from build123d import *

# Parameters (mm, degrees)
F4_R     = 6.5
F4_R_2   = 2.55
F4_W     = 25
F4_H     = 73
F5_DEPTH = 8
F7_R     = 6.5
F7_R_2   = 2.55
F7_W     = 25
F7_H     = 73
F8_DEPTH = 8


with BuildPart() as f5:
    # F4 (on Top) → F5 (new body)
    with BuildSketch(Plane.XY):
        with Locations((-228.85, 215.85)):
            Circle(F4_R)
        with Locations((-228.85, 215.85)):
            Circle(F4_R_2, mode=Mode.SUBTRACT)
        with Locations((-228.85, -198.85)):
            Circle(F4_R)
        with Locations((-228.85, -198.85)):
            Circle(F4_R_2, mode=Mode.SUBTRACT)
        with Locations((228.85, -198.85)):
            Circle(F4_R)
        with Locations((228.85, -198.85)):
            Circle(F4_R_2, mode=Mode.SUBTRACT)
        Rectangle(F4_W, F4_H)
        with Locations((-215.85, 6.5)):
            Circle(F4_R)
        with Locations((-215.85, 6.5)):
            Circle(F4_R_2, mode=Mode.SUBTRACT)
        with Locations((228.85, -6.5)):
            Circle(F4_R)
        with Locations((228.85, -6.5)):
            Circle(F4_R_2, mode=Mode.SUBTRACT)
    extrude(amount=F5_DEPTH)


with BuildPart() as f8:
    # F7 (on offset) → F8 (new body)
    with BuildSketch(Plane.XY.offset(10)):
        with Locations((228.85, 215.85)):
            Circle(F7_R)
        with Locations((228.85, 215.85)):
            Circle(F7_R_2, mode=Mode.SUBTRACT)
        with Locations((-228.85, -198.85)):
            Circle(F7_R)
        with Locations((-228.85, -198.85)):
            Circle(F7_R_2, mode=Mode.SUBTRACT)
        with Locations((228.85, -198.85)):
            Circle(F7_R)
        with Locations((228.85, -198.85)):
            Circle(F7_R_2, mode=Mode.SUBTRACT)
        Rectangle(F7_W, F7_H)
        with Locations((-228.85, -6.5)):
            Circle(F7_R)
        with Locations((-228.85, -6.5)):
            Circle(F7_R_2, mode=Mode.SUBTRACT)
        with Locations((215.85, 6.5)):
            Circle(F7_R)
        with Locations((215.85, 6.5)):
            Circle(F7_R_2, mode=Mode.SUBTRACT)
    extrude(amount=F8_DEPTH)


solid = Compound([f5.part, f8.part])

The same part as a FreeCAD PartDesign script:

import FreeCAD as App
import Part
import Sketcher
from FreeCAD import Vector


def add_polygon(sketch, points):
    """Adds a closed chain of lines whose ends are joined by coincident constraints."""
    first, n = sketch.GeometryCount, len(points)
    for a, b in zip(points, points[1:] + points[:1]):
        sketch.addGeometry(Part.LineSegment(App.Vector(*a, 0), App.Vector(*b, 0)), False)
    for i in range(n):
        sketch.addConstraint(Sketcher.Constraint("Coincident", first + i, 2, first + (i + 1) % n, 1))

doc = App.newDocument("Part")
params = doc.addObject("Spreadsheet::Sheet", "Params")
for row, (alias, value) in enumerate([
    ("sketch1_diameter", "13 mm"),
    ("sketch1_diameter2", "5.1 mm"),
    ("sketch1_width", "25 mm"),
    ("sketch1_height", "73 mm"),
    ("pad1_length", "8 mm"),
    ("sketch2_diameter", "13 mm"),
    ("sketch2_diameter2", "5.1 mm"),
    ("sketch2_width", "25 mm"),
    ("sketch2_height", "73 mm"),
    ("pad2_length", "8 mm"),
], start=1):
    params.set(f"A{row}", alias)
    params.set(f"B{row}", "=" + value)
    params.setAlias(f"B{row}", alias)

body = doc.addObject("PartDesign::Body", "Body")
body.AllowCompound = True

# Sketch on XY plane
sketch1 = body.newObject("Sketcher::SketchObject", "Sketch")
sketch1.AttachmentSupport = (doc.getObject("XY_Plane"), [""])
sketch1.MapMode = "FlatFace"
sketch1.addGeometry(Part.Circle(Vector(-228.85, 215.85, 0), Vector(0, 0, 1), 6.5), False)  # 0
sketch1.addGeometry(Part.Circle(Vector(-228.85, 215.85, 0), Vector(0, 0, 1), 2.55), False)  # 1
sketch1.addGeometry(Part.Circle(Vector(-228.85, -198.85, 0), Vector(0, 0, 1), 6.5), False)  # 2
sketch1.addGeometry(Part.Circle(Vector(-228.85, -198.85, 0), Vector(0, 0, 1), 2.55), False)  # 3
sketch1.addGeometry(Part.Circle(Vector(228.85, -198.85, 0), Vector(0, 0, 1), 6.5), False)  # 4
sketch1.addGeometry(Part.Circle(Vector(228.85, -198.85, 0), Vector(0, 0, 1), 2.55), False)  # 5
add_polygon(sketch1, [(-12.5, 36.5), (-12.5, -36.5), (12.5, -36.5), (12.5, 36.5)])  # lines 6-9
sketch1.addGeometry(Part.Circle(Vector(-215.85, 6.5, 0), Vector(0, 0, 1), 6.5), False)  # 10
sketch1.addGeometry(Part.Circle(Vector(-215.85, 6.5, 0), Vector(0, 0, 1), 2.55), False)  # 11
sketch1.addGeometry(Part.Circle(Vector(228.85, -6.5, 0), Vector(0, 0, 1), 6.5), False)  # 12
sketch1.addGeometry(Part.Circle(Vector(228.85, -6.5, 0), Vector(0, 0, 1), 2.55), False)  # 13
sketch1.addConstraint([
    Sketcher.Constraint("Vertical", 6),
    Sketcher.Constraint("Horizontal", 7),
    Sketcher.Constraint("Vertical", 8),
    Sketcher.Constraint("Horizontal", 9),
    Sketcher.Constraint("Coincident", 1, 3, 0, 3),
    Sketcher.Constraint("Coincident", 3, 3, 2, 3),
    Sketcher.Constraint("Coincident", 5, 3, 4, 3),
    Sketcher.Constraint("Coincident", 11, 3, 10, 3),
    Sketcher.Constraint("Coincident", 13, 3, 12, 3),
    Sketcher.Constraint("Equal", 0, 2),
    Sketcher.Constraint("Equal", 1, 3),
    Sketcher.Constraint("Equal", 2, 4),
    Sketcher.Constraint("Equal", 3, 5),
    Sketcher.Constraint("Equal", 4, 10),
    Sketcher.Constraint("Equal", 5, 11),
    Sketcher.Constraint("Equal", 10, 12),
    Sketcher.Constraint("Equal", 11, 13),
    Sketcher.Constraint("Symmetric", 6, 2, 8, 2, -1, 1),
    Sketcher.Constraint("Symmetric", 2, 3, 4, 3, -2),
    Sketcher.Constraint("Vertical", 1, 3, 2, 3),
    Sketcher.Constraint("Vertical", 5, 3, 12, 3),
    Sketcher.Constraint("Diameter", 0, 13.0),
    Sketcher.Constraint("Diameter", 1, 5.1),
    Sketcher.Constraint("DistanceX", 7, 1, 7, 2, 25.0),
    Sketcher.Constraint("DistanceY", 6, 2, 6, 1, 73.0),
    Sketcher.Constraint("DistanceX", 2, 3, 10, 3, 13.0),
    Sketcher.Constraint("DistanceY", 12, 3, 10, 3, 13.0),
    Sketcher.Constraint("DistanceY", 6, 2, 10, 3, 43.0),
    Sketcher.Constraint("DistanceY", 2, 3, 0, 3, 414.7),
    Sketcher.Constraint("DistanceX", 2, 3, 4, 3, 457.7),
    Sketcher.Constraint("DistanceY", -1, 1, 0, 3, 215.85),
])
sketch1.setExpression("Constraints[25]", "Params.sketch1_diameter")
sketch1.setExpression("Constraints[26]", "Params.sketch1_diameter2")
sketch1.setExpression("Constraints[27]", "Params.sketch1_width")
sketch1.setExpression("Constraints[28]", "Params.sketch1_height")
pad1 = body.newObject("PartDesign::Pad", "Pad")
pad1.Profile = sketch1
pad1.setExpression("Length", "Params.pad1_length")
body2 = doc.addObject("PartDesign::Body", "Body001")
body2.AllowCompound = True

# Sketch on XY plane
sketch2 = body2.newObject("Sketcher::SketchObject", "Sketch001")
sketch2.AttachmentSupport = (doc.getObject("XY_Plane001"), [""])
sketch2.MapMode = "FlatFace"
sketch2.AttachmentOffset = App.Placement(Vector(0, 0, 10), App.Rotation())
sketch2.addGeometry(Part.Circle(Vector(228.85, 215.85, 0), Vector(0, 0, 1), 6.5), False)  # 0
sketch2.addGeometry(Part.Circle(Vector(228.85, 215.85, 0), Vector(0, 0, 1), 2.55), False)  # 1
sketch2.addGeometry(Part.Circle(Vector(-228.85, -198.85, 0), Vector(0, 0, 1), 6.5), False)  # 2
sketch2.addGeometry(Part.Circle(Vector(-228.85, -198.85, 0), Vector(0, 0, 1), 2.55), False)  # 3
sketch2.addGeometry(Part.Circle(Vector(228.85, -198.85, 0), Vector(0, 0, 1), 6.5), False)  # 4
sketch2.addGeometry(Part.Circle(Vector(228.85, -198.85, 0), Vector(0, 0, 1), 2.55), False)  # 5
add_polygon(sketch2, [(-12.5, 36.5), (-12.5, -36.5), (12.5, -36.5), (12.5, 36.5)])  # lines 6-9
sketch2.addGeometry(Part.Circle(Vector(-228.85, -6.5, 0), Vector(0, 0, 1), 6.5), False)  # 10
sketch2.addGeometry(Part.Circle(Vector(-228.85, -6.5, 0), Vector(0, 0, 1), 2.55), False)  # 11
sketch2.addGeometry(Part.Circle(Vector(215.85, 6.5, 0), Vector(0, 0, 1), 6.5), False)  # 12
sketch2.addGeometry(Part.Circle(Vector(215.85, 6.5, 0), Vector(0, 0, 1), 2.55), False)  # 13
sketch2.addConstraint([
    Sketcher.Constraint("Vertical", 6),
    Sketcher.Constraint("Horizontal", 7),
    Sketcher.Constraint("Vertical", 8),
    Sketcher.Constraint("Horizontal", 9),
    Sketcher.Constraint("Coincident", 1, 3, 0, 3),
    Sketcher.Constraint("Coincident", 3, 3, 2, 3),
    Sketcher.Constraint("Coincident", 5, 3, 4, 3),
    Sketcher.Constraint("Coincident", 11, 3, 10, 3),
    Sketcher.Constraint("Coincident", 13, 3, 12, 3),
    Sketcher.Constraint("Equal", 0, 2),
    Sketcher.Constraint("Equal", 1, 3),
    Sketcher.Constraint("Equal", 2, 4),
    Sketcher.Constraint("Equal", 3, 5),
    Sketcher.Constraint("Equal", 4, 10),
    Sketcher.Constraint("Equal", 5, 11),
    Sketcher.Constraint("Equal", 10, 12),
    Sketcher.Constraint("Equal", 11, 13),
    Sketcher.Constraint("Symmetric", 6, 2, 8, 2, -1, 1),
    Sketcher.Constraint("Symmetric", 2, 3, 4, 3, -2),
    Sketcher.Constraint("Vertical", 1, 3, 4, 3),
    Sketcher.Constraint("Vertical", 3, 3, 10, 3),
    Sketcher.Constraint("Diameter", 0, 13.0),
    Sketcher.Constraint("Diameter", 1, 5.1),
    Sketcher.Constraint("DistanceX", 7, 1, 7, 2, 25.0),
    Sketcher.Constraint("DistanceY", 6, 2, 6, 1, 73.0),
    Sketcher.Constraint("DistanceX", 12, 3, 4, 3, 13.0),
    Sketcher.Constraint("DistanceY", 10, 3, 12, 3, 13.0),
    Sketcher.Constraint("DistanceY", 6, 2, 10, 3, 30.0),
    Sketcher.Constraint("DistanceX", 2, 3, 0, 3, 457.7),
    Sketcher.Constraint("DistanceY", 2, 3, 0, 3, 414.7),
    Sketcher.Constraint("DistanceY", -1, 1, 0, 3, 215.85),
])
sketch2.setExpression("Constraints[25]", "Params.sketch2_diameter")
sketch2.setExpression("Constraints[26]", "Params.sketch2_diameter2")
sketch2.setExpression("Constraints[27]", "Params.sketch2_width")
sketch2.setExpression("Constraints[28]", "Params.sketch2_height")
pad2 = body2.newObject("PartDesign::Pad", "Pad001")
pad2.Profile = sketch2
pad2.setExpression("Length", "Params.pad2_length")

doc.recompute()
